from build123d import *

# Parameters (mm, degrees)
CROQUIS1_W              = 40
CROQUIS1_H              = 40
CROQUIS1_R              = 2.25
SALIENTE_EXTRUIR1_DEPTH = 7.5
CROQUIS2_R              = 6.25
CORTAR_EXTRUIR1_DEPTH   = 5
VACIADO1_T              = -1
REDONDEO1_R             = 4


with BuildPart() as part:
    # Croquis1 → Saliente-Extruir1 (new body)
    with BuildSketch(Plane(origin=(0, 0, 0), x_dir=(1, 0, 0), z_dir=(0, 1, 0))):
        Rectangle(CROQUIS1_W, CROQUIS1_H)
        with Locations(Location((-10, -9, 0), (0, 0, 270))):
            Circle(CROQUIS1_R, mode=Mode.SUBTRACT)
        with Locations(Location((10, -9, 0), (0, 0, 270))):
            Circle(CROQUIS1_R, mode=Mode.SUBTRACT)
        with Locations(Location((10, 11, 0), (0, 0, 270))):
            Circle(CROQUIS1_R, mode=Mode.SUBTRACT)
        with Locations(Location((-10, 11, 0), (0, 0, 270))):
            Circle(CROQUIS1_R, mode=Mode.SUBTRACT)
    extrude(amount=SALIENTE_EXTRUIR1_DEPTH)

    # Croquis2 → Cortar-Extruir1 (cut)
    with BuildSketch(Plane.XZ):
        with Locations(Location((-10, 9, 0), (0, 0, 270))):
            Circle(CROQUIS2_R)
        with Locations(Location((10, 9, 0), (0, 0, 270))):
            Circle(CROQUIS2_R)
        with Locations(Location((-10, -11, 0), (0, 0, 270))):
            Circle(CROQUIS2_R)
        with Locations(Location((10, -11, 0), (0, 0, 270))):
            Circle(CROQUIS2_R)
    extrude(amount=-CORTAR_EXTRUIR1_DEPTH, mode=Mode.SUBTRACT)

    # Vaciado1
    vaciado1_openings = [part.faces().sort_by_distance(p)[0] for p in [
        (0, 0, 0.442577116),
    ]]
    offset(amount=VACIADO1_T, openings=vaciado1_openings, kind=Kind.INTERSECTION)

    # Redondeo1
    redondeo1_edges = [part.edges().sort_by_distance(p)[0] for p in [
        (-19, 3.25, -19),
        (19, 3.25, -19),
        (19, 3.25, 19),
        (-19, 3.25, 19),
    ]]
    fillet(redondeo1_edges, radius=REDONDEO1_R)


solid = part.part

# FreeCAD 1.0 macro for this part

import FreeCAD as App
import Part
import Sketcher

V = App.Vector
Q = App.Units.Quantity


def edges_at(feature, points):
    """Names of the edges that pass closest to the given points."""
    edges = feature.Shape.Edges
    near = lambda p: min(range(len(edges)), key=lambda i: edges[i].distToShape(Part.Vertex(*p))[0])
    return sorted({f"Edge{near(p) + 1}" for p in points})


def faces_at(feature, points):
    """Names of the faces that lie closest to the given points."""
    faces = feature.Shape.Faces
    near = lambda p: min(range(len(faces)), key=lambda i: faces[i].distToShape(Part.Vertex(*p))[0])
    return sorted({f"Face{near(p) + 1}" for p in points})

doc = App.newDocument("Part")
body = doc.addObject("PartDesign::Body", "Body")

# Sketch on XZ plane
sketch1 = doc.addObject("Sketcher::SketchObject", "Sketch")
body.addObject(sketch1)
sketch1.AttachmentSupport = (doc.XZ_Plane, [""])
sketch1.MapMode = "FlatFace"
sketch1.addGeometry([
    Part.LineSegment(V(-20, -20, 0), V(-20, 20, 0)),  # 0
    Part.LineSegment(V(-20, 20, 0), V(20, 20, 0)),  # 1
    Part.LineSegment(V(20, 20, 0), V(20, -20, 0)),  # 2
    Part.LineSegment(V(20, -20, 0), V(-20, -20, 0)),  # 3
    Part.Circle(V(-10, 9, 0), V(0, 0, 1), 2.25),  # 4
    Part.Circle(V(10, 9, 0), V(0, 0, 1), 2.25),  # 5
    Part.Circle(V(-10, -11, 0), V(0, 0, 1), 2.25),  # 6
    Part.Circle(V(10, -11, 0), V(0, 0, 1), 2.25),  # 7
], False)
sketch1.addConstraint([
    Sketcher.Constraint("Coincident", 0, 2, 1, 1),
    Sketcher.Constraint("Coincident", 1, 2, 2, 1),
    Sketcher.Constraint("Coincident", 2, 2, 3, 1),
    Sketcher.Constraint("Coincident", 3, 2, 0, 1),
    Sketcher.Constraint("Vertical", 0),
    Sketcher.Constraint("Horizontal", 1),
    Sketcher.Constraint("Vertical", 2),
    Sketcher.Constraint("Horizontal", 3),
    Sketcher.Constraint("Equal", 4, 5),
    Sketcher.Constraint("Equal", 5, 6),
    Sketcher.Constraint("Equal", 6, 7),
    Sketcher.Constraint("Symmetric", 0, 2, 2, 2, -1, 1),
    Sketcher.Constraint("Symmetric", 4, 3, 5, 3, -2),
    Sketcher.Constraint("Symmetric", 6, 3, 7, 3, -2),
    Sketcher.Constraint("Vertical", 4, 3, 6, 3),
    Sketcher.Constraint("Equal", 3, 0),
    Sketcher.Constraint("Diameter", 4, Q("4.5 mm")),
    Sketcher.Constraint("DistanceX", 1, 1, 1, 2, Q("40 mm")),
    Sketcher.Constraint("DistanceX", 4, 3, -1, 1, Q("10 mm")),
    Sketcher.Constraint("DistanceY", -1, 1, 4, 3, Q("9 mm")),
    Sketcher.Constraint("DistanceY", 6, 3, -1, 1, Q("11 mm")),
])
pad1 = doc.addObject("PartDesign::Pad", "Pad")
body.addObject(pad1)
pad1.Profile = sketch1
pad1.Length = 7.5
pad1.Reversed = True

# Sketch on XZ plane
sketch2 = doc.addObject("Sketcher::SketchObject", "Sketch001")
body.addObject(sketch2)
sketch2.AttachmentSupport = (doc.XZ_Plane, [""])
sketch2.MapMode = "FlatFace"
sketch2.addGeometry([
    Part.Circle(V(-10, 9, 0), V(0, 0, 1), 6.25),
    Part.Circle(V(10, 9, 0), V(0, 0, 1), 6.25),
    Part.Circle(V(-10, -11, 0), V(0, 0, 1), 6.25),
    Part.Circle(V(10, -11, 0), V(0, 0, 1), 6.25),
], False)
sketch2.addConstraint([
    Sketcher.Constraint("Equal", 0, 1),
    Sketcher.Constraint("Equal", 1, 2),
    Sketcher.Constraint("Equal", 2, 3),
    Sketcher.Constraint("Symmetric", 0, 3, 1, 3, -2),
    Sketcher.Constraint("Symmetric", 2, 3, 3, 3, -2),
    Sketcher.Constraint("Vertical", 0, 3, 2, 3),
    Sketcher.Constraint("Diameter", 0, Q("12.5 mm")),
    Sketcher.Constraint("DistanceX", 0, 3, -1, 1, Q("10 mm")),
    Sketcher.Constraint("DistanceY", -1, 1, 0, 3, Q("9 mm")),
    Sketcher.Constraint("DistanceY", 2, 3, -1, 1, Q("11 mm")),
])
pocket1 = doc.addObject("PartDesign::Pocket", "Pocket")
body.addObject(pocket1)
pocket1.Profile = sketch2
pocket1.Length = 5
doc.recompute()

thickness = doc.addObject("PartDesign::Thickness", "Thickness")
body.addObject(thickness)
thickness.Base = (pocket1, faces_at(pocket1, [(0, 0, 0)]))
thickness.Value = 1
thickness.Reversed = True
thickness.Join = "Intersection"
doc.recompute()

fillet = doc.addObject("PartDesign::Fillet", "Fillet")
body.addObject(fillet)
fillet.Base = (thickness, edges_at(thickness, [
    (-19, 3.25, -19),
    (19, 3.25, -19),
    (19, 3.25, 19),
    (-19, 3.25, 19),
]))
fillet.Radius = 4

doc.recompute()
